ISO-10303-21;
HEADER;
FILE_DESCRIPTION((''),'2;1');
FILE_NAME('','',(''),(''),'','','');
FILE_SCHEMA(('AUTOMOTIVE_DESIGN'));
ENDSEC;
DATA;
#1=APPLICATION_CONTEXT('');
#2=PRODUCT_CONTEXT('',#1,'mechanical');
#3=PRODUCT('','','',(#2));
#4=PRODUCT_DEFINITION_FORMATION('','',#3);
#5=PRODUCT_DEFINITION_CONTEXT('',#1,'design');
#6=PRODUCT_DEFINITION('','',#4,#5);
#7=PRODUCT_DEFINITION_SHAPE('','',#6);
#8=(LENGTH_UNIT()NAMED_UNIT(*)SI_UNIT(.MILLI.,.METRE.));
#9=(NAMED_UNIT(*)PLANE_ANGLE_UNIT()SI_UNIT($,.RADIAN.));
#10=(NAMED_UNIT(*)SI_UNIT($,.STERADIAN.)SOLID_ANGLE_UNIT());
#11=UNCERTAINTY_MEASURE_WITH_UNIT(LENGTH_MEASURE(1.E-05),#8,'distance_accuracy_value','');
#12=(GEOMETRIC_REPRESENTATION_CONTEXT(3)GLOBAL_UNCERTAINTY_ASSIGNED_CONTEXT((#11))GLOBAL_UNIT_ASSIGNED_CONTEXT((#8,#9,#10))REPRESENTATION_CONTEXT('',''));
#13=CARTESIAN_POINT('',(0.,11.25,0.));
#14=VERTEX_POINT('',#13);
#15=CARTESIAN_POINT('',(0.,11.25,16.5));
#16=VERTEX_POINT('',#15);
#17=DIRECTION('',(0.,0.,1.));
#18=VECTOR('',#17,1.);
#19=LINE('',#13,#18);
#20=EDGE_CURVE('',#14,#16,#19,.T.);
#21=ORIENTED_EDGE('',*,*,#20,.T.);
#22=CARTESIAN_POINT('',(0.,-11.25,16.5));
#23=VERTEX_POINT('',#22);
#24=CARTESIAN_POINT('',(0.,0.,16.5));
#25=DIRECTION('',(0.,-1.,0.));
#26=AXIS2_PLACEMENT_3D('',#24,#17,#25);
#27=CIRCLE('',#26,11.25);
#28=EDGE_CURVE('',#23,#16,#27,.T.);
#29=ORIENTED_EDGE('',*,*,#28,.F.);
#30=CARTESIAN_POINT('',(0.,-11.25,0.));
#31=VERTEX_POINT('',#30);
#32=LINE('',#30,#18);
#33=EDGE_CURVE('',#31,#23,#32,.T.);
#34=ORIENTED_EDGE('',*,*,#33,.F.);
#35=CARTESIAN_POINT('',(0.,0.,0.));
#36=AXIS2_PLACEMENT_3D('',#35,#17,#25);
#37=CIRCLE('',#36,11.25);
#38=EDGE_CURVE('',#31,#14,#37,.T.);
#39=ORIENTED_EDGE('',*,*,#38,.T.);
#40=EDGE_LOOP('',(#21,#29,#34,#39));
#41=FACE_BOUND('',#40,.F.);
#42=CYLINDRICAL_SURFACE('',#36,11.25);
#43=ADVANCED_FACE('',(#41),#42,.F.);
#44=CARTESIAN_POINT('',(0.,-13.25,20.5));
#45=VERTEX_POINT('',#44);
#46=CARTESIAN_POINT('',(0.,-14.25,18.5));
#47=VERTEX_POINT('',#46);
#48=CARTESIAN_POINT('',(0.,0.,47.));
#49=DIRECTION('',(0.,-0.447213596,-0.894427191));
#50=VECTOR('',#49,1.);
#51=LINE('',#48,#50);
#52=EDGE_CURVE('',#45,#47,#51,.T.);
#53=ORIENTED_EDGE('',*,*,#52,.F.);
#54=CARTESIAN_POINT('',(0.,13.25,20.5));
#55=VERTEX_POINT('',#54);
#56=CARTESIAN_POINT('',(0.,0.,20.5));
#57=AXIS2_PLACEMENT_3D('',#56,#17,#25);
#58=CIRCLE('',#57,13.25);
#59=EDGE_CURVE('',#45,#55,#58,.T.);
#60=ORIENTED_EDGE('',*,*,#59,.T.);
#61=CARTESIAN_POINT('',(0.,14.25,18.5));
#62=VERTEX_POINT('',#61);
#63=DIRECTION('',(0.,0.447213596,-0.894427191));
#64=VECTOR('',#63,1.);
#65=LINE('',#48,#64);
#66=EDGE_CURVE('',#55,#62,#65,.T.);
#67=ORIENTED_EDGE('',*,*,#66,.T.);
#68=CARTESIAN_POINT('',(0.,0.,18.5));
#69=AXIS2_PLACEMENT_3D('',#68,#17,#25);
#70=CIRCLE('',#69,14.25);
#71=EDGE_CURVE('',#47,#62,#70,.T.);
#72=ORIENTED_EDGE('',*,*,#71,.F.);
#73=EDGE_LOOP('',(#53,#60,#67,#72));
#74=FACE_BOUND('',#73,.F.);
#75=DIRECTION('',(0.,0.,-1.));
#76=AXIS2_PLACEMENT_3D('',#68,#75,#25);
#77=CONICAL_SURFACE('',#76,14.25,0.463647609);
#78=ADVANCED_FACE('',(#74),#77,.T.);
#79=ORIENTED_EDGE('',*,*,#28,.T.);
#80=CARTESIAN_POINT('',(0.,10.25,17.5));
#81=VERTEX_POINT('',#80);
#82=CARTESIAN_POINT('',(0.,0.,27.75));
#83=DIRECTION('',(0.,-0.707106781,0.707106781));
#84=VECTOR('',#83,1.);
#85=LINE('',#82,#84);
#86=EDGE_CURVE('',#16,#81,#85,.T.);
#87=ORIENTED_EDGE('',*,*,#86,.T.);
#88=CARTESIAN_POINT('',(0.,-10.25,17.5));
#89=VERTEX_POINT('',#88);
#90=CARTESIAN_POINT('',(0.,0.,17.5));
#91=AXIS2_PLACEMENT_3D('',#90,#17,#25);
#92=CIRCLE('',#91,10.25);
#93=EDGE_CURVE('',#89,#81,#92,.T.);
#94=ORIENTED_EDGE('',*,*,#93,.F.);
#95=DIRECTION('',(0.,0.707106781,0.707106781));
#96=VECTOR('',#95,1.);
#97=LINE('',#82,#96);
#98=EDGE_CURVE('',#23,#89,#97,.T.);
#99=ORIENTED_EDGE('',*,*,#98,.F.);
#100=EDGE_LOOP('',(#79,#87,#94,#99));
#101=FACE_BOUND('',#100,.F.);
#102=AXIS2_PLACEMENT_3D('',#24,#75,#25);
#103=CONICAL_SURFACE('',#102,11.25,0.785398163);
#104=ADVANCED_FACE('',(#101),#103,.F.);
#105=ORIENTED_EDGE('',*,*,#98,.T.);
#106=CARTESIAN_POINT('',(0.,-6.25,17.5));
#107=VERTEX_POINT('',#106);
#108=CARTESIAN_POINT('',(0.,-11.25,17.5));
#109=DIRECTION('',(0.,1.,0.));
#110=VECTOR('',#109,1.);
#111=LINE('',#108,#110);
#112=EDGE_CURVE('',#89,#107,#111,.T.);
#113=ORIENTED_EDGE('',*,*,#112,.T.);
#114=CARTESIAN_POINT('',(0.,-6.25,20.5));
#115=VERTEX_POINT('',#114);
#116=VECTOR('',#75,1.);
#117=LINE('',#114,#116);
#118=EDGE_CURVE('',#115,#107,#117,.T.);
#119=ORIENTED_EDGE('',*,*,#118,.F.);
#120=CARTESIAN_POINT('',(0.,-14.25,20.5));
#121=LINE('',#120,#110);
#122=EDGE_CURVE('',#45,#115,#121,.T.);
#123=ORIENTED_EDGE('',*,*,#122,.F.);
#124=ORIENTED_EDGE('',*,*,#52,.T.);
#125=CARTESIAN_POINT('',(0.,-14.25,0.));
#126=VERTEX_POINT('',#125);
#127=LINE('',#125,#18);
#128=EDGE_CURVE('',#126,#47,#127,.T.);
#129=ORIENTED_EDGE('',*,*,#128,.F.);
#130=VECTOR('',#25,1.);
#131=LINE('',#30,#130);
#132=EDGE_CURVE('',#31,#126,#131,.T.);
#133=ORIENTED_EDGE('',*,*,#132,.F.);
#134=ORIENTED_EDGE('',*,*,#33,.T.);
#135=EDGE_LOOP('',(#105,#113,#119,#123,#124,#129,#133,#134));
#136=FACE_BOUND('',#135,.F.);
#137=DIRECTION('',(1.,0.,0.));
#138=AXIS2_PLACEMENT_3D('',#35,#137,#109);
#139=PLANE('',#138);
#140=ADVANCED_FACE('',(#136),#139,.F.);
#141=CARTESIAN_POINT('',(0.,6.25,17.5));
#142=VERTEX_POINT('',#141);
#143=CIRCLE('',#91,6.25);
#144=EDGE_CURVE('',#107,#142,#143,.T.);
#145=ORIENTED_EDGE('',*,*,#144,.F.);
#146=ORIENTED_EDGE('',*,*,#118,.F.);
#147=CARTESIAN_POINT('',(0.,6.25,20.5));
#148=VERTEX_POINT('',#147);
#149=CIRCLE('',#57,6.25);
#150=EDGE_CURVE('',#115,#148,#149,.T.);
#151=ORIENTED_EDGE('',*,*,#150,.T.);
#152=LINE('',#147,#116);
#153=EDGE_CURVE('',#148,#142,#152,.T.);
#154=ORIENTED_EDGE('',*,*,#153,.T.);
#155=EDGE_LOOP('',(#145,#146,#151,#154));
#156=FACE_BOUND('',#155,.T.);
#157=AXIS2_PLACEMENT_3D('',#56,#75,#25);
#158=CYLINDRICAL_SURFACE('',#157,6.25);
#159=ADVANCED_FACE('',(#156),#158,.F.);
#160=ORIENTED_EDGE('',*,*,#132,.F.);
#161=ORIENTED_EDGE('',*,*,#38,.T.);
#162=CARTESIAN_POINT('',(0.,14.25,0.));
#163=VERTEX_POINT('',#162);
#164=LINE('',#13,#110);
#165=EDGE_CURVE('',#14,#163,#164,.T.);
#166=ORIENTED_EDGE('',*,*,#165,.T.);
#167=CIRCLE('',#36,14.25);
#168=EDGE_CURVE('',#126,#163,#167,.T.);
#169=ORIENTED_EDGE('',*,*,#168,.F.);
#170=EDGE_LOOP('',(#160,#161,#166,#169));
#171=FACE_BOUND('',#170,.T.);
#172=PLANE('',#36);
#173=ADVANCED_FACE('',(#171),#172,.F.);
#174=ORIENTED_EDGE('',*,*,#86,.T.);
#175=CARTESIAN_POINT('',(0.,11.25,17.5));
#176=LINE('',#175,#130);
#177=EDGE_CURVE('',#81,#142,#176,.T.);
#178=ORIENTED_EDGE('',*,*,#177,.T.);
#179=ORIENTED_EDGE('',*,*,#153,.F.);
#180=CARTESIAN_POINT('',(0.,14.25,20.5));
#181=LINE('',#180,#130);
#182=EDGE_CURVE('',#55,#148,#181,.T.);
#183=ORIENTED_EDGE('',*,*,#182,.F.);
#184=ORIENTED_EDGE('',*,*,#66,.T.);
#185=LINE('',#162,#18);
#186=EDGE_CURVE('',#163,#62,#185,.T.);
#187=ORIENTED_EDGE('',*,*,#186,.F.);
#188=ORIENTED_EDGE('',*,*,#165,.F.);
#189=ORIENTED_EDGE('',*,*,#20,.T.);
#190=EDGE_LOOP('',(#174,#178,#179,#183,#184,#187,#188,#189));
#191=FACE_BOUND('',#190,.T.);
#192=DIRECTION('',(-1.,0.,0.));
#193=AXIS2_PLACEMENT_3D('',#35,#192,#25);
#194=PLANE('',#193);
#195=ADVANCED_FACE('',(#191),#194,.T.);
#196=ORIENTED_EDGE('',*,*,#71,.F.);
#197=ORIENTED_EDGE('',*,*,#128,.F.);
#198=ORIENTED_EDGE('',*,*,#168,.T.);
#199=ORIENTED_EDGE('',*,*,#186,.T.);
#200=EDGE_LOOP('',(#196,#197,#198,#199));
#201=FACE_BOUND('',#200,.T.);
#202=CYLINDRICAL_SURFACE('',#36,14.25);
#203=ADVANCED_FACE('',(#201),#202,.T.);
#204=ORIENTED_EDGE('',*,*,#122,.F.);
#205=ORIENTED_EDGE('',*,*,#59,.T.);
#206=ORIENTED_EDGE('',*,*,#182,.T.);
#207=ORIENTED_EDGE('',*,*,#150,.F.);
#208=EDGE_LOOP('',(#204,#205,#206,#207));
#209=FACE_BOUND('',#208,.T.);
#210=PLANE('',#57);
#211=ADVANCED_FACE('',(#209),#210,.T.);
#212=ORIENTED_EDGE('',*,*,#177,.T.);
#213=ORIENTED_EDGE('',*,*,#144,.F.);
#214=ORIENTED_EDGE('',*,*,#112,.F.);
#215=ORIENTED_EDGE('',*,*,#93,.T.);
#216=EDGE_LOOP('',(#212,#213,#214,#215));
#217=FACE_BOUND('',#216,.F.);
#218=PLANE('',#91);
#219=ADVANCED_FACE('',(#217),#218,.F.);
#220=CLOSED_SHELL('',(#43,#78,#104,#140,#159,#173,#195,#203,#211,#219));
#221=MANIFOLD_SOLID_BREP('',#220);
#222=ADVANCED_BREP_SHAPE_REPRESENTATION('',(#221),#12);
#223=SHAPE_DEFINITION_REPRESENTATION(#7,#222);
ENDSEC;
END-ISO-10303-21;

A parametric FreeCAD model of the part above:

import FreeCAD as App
import Part
import Sketcher

V = App.Vector


def edges_at(feature, points):
    """Names of the edges that pass closest to the given points."""
    edges = feature.Shape.Edges
    near = lambda p: min(range(len(edges)), key=lambda i: edges[i].distToShape(Part.Vertex(*p))[0])
    return sorted({f"Edge{near(p) + 1}" for p in points})

doc = App.newDocument("Part")
body = doc.addObject("PartDesign::Body", "Body")

# Sketch on YZ plane
sketch1 = body.newObject("Sketcher::SketchObject", "Sketch")
sketch1.AttachmentSupport = (doc.getObject("YZ_Plane"), [""])
sketch1.MapMode = "FlatFace"
sketch1.addGeometry(Part.LineSegment(V(-14.25, 0, 0), V(-11.25, 0, 0)), False)
sketch1.addGeometry(Part.LineSegment(V(-11.25, 0, 0), V(-11.25, 17.5, 0)), False)
sketch1.addGeometry(Part.LineSegment(V(-11.25, 17.5, 0), V(-6.25, 17.5, 0)), False)
sketch1.addGeometry(Part.LineSegment(V(-6.25, 17.5, 0), V(-6.25, 20.5, 0)), False)
sketch1.addGeometry(Part.LineSegment(V(-6.25, 20.5, 0), V(-14.25, 20.5, 0)), False)
sketch1.addGeometry(Part.LineSegment(V(-14.25, 20.5, 0), V(-14.25, 0, 0)), False)
sketch1.addConstraint(Sketcher.Constraint("Coincident", 0, 2, 1, 1))
sketch1.addConstraint(Sketcher.Constraint("Coincident", 1, 2, 2, 1))
sketch1.addConstraint(Sketcher.Constraint("Coincident", 2, 2, 3, 1))
sketch1.addConstraint(Sketcher.Constraint("Coincident", 3, 2, 4, 1))
sketch1.addConstraint(Sketcher.Constraint("Coincident", 4, 2, 5, 1))
sketch1.addConstraint(Sketcher.Constraint("Coincident", 5, 2, 0, 1))
sketch1.addConstraint(Sketcher.Constraint("Horizontal", 0))
sketch1.addConstraint(Sketcher.Constraint("Vertical", 1))
sketch1.addConstraint(Sketcher.Constraint("Horizontal", 2))
sketch1.addConstraint(Sketcher.Constraint("Vertical", 3))
sketch1.addConstraint(Sketcher.Constraint("Horizontal", 4))
sketch1.addConstraint(Sketcher.Constraint("Vertical", 5))
sketch1.addConstraint(Sketcher.Constraint("PointOnObject", 0, 2, -1))
sketch1.addConstraint(Sketcher.Constraint("Equal", 0, 3))
sketch1.addConstraint(Sketcher.Constraint("DistanceX", 0, 1, 0, 2, 3.0))
sketch1.addConstraint(Sketcher.Constraint("DistanceY", 1, 1, 1, 2, 17.5))
sketch1.addConstraint(Sketcher.Constraint("DistanceX", 2, 1, 2, 2, 5.0))
sketch1.addConstraint(Sketcher.Constraint("DistanceX", 0, 2, -1, 1, 11.25))
revolution = body.newObject("PartDesign::Revolution", "Revolution")
revolution.Profile = sketch1
revolution.ReferenceAxis = (sketch1, ["V_Axis"])
revolution.Angle = 180
doc.recompute()

chamfer = body.newObject("PartDesign::Chamfer", "Chamfer")
chamfer.Base = (revolution, edges_at(revolution, [(14.25, 0, 20.5)]))
chamfer.ChamferType = "Two distances"
chamfer.Size = 1
chamfer.Size2 = 2
doc.recompute()

chamfer2 = body.newObject("PartDesign::Chamfer", "Chamfer001")
chamfer2.Base = (chamfer, edges_at(chamfer, [(11.25, 0, 17.5)]))
chamfer2.ChamferType = "Two distances"
chamfer2.Size = 1
chamfer2.Size2 = 1

doc.recompute()
